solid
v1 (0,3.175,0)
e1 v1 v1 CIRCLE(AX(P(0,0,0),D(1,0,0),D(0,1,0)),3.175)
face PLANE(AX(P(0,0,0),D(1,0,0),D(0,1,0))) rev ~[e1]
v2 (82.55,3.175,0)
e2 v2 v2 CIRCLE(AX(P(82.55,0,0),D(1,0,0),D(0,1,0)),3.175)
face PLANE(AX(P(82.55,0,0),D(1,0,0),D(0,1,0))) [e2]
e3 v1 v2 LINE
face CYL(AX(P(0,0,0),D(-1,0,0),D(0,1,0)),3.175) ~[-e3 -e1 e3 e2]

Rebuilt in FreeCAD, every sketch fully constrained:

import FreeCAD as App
import Part
import Sketcher
Q = App.Units.Quantity

doc = App.newDocument("Part")
body = doc.addObject("PartDesign::Body", "Body")

sketch1 = doc.addObject("Sketcher::SketchObject", "Sketch")
body.addObject(sketch1)
sketch1.AttachmentSupport = (doc.YZ_Plane, [""])
sketch1.MapMode = "FlatFace"
sketch1.addGeometry(Part.Circle(App.Vector(0, 0, 0), App.Vector(0, 0, 1), 3.175), False)
sketch1.addConstraint([
    Sketcher.Constraint("Coincident", 0, 3, -1, 1),
    Sketcher.Constraint("Diameter", 0, Q("0.25 in")),
])
pad1 = doc.addObject("PartDesign::Pad", "Pad")
body.addObject(pad1)
pad1.Profile = sketch1
pad1.Length = Q("3.25 in")

doc.recompute()
